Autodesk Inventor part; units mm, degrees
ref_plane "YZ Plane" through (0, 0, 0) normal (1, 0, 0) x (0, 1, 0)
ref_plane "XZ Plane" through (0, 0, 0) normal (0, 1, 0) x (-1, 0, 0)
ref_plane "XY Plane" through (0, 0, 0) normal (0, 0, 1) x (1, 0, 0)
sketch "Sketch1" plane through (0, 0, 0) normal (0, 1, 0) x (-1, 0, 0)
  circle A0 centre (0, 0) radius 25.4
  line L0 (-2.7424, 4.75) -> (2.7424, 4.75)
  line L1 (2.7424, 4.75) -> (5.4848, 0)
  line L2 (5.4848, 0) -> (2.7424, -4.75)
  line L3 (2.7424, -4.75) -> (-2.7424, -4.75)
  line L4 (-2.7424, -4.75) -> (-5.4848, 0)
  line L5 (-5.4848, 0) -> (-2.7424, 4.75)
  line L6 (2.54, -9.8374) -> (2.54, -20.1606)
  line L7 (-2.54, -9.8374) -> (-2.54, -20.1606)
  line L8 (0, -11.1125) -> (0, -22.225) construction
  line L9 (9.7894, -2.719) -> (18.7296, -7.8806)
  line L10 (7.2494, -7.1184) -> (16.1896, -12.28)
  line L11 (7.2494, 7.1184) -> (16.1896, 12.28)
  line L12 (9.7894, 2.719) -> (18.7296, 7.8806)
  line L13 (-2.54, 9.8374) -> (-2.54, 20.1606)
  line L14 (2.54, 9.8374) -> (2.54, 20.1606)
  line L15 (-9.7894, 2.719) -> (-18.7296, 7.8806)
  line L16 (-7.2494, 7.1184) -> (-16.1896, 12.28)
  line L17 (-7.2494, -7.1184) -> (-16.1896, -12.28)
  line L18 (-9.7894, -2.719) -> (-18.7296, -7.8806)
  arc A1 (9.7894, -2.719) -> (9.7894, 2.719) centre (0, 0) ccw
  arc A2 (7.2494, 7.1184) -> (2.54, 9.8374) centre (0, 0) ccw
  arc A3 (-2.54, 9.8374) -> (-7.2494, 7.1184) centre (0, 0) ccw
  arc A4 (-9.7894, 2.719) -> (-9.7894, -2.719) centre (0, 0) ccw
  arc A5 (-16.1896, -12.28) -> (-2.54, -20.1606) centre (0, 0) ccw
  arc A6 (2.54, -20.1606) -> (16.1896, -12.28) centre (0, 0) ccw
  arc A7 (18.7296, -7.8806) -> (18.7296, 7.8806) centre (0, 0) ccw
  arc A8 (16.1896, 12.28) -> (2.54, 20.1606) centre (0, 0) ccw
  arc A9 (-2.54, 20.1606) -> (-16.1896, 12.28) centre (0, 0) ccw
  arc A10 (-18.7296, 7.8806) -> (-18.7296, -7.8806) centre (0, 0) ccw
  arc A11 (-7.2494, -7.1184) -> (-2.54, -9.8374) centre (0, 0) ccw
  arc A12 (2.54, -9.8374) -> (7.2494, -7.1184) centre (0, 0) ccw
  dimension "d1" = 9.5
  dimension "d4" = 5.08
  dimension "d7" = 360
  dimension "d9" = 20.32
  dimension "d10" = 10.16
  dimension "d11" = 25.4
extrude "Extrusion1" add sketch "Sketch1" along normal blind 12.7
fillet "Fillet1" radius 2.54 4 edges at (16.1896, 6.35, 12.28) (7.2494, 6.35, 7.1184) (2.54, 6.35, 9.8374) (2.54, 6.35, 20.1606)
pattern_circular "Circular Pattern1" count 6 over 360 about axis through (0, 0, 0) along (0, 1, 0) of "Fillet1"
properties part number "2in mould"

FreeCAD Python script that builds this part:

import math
import FreeCAD as App
import Part
import Sketcher
from FreeCAD import Vector
Q = App.Units.Quantity


def edges_at(feature, points):
    """Names of the edges that pass closest to the given points."""
    edges = feature.Shape.Edges
    near = lambda p: min(range(len(edges)), key=lambda i: edges[i].distToShape(Part.Vertex(*p))[0])
    return sorted({f"Edge{near(p) + 1}" for p in points})


def add_polygon(sketch, points):
    """Adds a closed chain of lines whose ends are joined by coincident constraints."""
    first, n = sketch.GeometryCount, len(points)
    for a, b in zip(points, points[1:] + points[:1]):
        sketch.addGeometry(Part.LineSegment(App.Vector(*a, 0), App.Vector(*b, 0)), False)
    for i in range(n):
        sketch.addConstraint(Sketcher.Constraint("Coincident", first + i, 2, first + (i + 1) % n, 1))

doc = App.newDocument("Part")
body = doc.addObject("PartDesign::Body", "Body")

# Sketch on XZ plane
sketch1 = body.newObject("Sketcher::SketchObject", "Sketch")
sketch1.AttachmentSupport = (doc.getObject("XZ_Plane"), [""])
sketch1.MapMode = "FlatFace"
sketch1.addGeometry(Part.Circle(Vector(0, 0, 0), Vector(0, 0, 1), 25.4), False)  # 0
sketch1.addGeometry(Part.ArcOfCircle(Part.Circle(Vector(0, 0, 0), Vector(0, 0, 1), 10.160022), math.radians(-75.522519), math.radians(-44.477614)), False)  # 1
sketch1.addGeometry(Part.LineSegment(Vector(2.54, -9.8374, 0), Vector(2.54, -20.1606, 0)), False)  # 2
sketch1.addGeometry(Part.ArcOfCircle(Part.Circle(Vector(0, 0, 0), Vector(0, 0, 1), 20.319975), math.radians(-82.819235), math.radians(-37.18074)), False)  # 3
sketch1.addGeometry(Part.LineSegment(Vector(16.1896, -12.28, 0), Vector(7.2494, -7.1184, 0)), False)  # 4
sketch1.addGeometry(Part.LineSegment(Vector(18.7296, 7.8806, 0), Vector(9.7894, 2.719, 0)), False)  # 5
sketch1.addGeometry(Part.ArcOfCircle(Part.Circle(Vector(0, 0, 0), Vector(0, 0, 1), 10.159986), math.radians(-15.522602), math.radians(15.522602)), False)  # 6
sketch1.addGeometry(Part.LineSegment(Vector(9.7894, -2.719, 0), Vector(18.7296, -7.8806, 0)), False)  # 7
sketch1.addGeometry(Part.ArcOfCircle(Part.Circle(Vector(0, 0, 0), Vector(0, 0, 1), 20.319985), math.radians(-22.819238), math.radians(22.819238)), False)  # 8
add_polygon(sketch1, [(5.4848, 0), (2.7424, 4.75), (-2.7424, 4.75), (-5.4848, 0), (-2.7424, -4.75), (2.7424, -4.75)])  # lines 9-14
sketch1.addGeometry(Part.LineSegment(Vector(-2.54, -20.1606, 0), Vector(-2.54, -9.8374, 0)), False)  # 15
sketch1.addGeometry(Part.ArcOfCircle(Part.Circle(Vector(0, 0, 0), Vector(0, 0, 1), 10.159986), math.radians(-135.522386), math.radians(-104.477481)), False)  # 16
sketch1.addGeometry(Part.LineSegment(Vector(-7.2494, -7.1184, 0), Vector(-16.1896, -12.28, 0)), False)  # 17
sketch1.addGeometry(Part.ArcOfCircle(Part.Circle(Vector(0, 0, 0), Vector(0, 0, 1), 20.319985), math.radians(-142.81926), math.radians(-97.180765)), False)  # 18
sketch1.addGeometry(Part.LineSegment(Vector(-18.7296, -7.8806, 0), Vector(-9.7894, -2.719, 0)), False)  # 19
sketch1.addGeometry(Part.ArcOfCircle(Part.Circle(Vector(0, 0, 0), Vector(0, 0, 1), 10.159986), math.radians(164.477398), math.radians(195.522602)), False)  # 20
sketch1.addGeometry(Part.LineSegment(Vector(-9.7894, 2.719, 0), Vector(-18.7296, 7.8806, 0)), False)  # 21
sketch1.addGeometry(Part.ArcOfCircle(Part.Circle(Vector(0, 0, 0), Vector(0, 0, 1), 20.319985), math.radians(157.180762), math.radians(202.819238)), False)  # 22
sketch1.addGeometry(Part.LineSegment(Vector(2.54, 20.1606, 0), Vector(2.54, 9.8374, 0)), False)  # 23
sketch1.addGeometry(Part.ArcOfCircle(Part.Circle(Vector(0, 0, 0), Vector(0, 0, 1), 10.159986), math.radians(44.477614), math.radians(75.522519)), False)  # 24
sketch1.addGeometry(Part.LineSegment(Vector(7.2494, 7.1184, 0), Vector(16.1896, 12.28, 0)), False)  # 25
sketch1.addGeometry(Part.ArcOfCircle(Part.Circle(Vector(0, 0, 0), Vector(0, 0, 1), 20.319985), math.radians(37.18074), math.radians(82.819235)), False)  # 26
sketch1.addGeometry(Part.LineSegment(Vector(-16.1896, 12.28, 0), Vector(-7.2494, 7.1184, 0)), False)  # 27
sketch1.addGeometry(Part.ArcOfCircle(Part.Circle(Vector(0, 0, 0), Vector(0, 0, 1), 10.160022), math.radians(104.477481), math.radians(135.522386)), False)  # 28
sketch1.addGeometry(Part.LineSegment(Vector(-2.54, 9.8374, 0), Vector(-2.54, 20.1606, 0)), False)  # 29
sketch1.addGeometry(Part.ArcOfCircle(Part.Circle(Vector(0, 0, 0), Vector(0, 0, 1), 20.319975), math.radians(97.180765), math.radians(142.81926)), False)  # 30
sketch1.addConstraint(Sketcher.Constraint("Coincident", 1, 1, 2, 1))
sketch1.addConstraint(Sketcher.Constraint("Coincident", 2, 2, 3, 1))
sketch1.addConstraint(Sketcher.Constraint("Coincident", 3, 2, 4, 1))
sketch1.addConstraint(Sketcher.Constraint("Coincident", 4, 2, 1, 2))
sketch1.addConstraint(Sketcher.Constraint("Coincident", 5, 2, 6, 2))
sketch1.addConstraint(Sketcher.Constraint("Coincident", 6, 1, 7, 1))
sketch1.addConstraint(Sketcher.Constraint("Coincident", 7, 2, 8, 1))
sketch1.addConstraint(Sketcher.Constraint("Coincident", 8, 2, 5, 1))
sketch1.addConstraint(Sketcher.Constraint("Coincident", 15, 2, 16, 2))
sketch1.addConstraint(Sketcher.Constraint("Coincident", 16, 1, 17, 1))
sketch1.addConstraint(Sketcher.Constraint("Coincident", 17, 2, 18, 1))
sketch1.addConstraint(Sketcher.Constraint("Coincident", 18, 2, 15, 1))
sketch1.addConstraint(Sketcher.Constraint("Coincident", 19, 2, 20, 2))
sketch1.addConstraint(Sketcher.Constraint("Coincident", 20, 1, 21, 1))
sketch1.addConstraint(Sketcher.Constraint("Coincident", 21, 2, 22, 1))
sketch1.addConstraint(Sketcher.Constraint("Coincident", 22, 2, 19, 1))
sketch1.addConstraint(Sketcher.Constraint("Coincident", 23, 2, 24, 2))
sketch1.addConstraint(Sketcher.Constraint("Coincident", 24, 1, 25, 1))
sketch1.addConstraint(Sketcher.Constraint("Coincident", 25, 2, 26, 1))
sketch1.addConstraint(Sketcher.Constraint("Coincident", 26, 2, 23, 1))
sketch1.addConstraint(Sketcher.Constraint("Coincident", 27, 2, 28, 2))
sketch1.addConstraint(Sketcher.Constraint("Coincident", 28, 1, 29, 1))
sketch1.addConstraint(Sketcher.Constraint("Coincident", 29, 2, 30, 1))
sketch1.addConstraint(Sketcher.Constraint("Coincident", 30, 2, 27, 1))
sketch1.addConstraint(Sketcher.Constraint("Vertical", 2))
sketch1.addConstraint(Sketcher.Constraint("Horizontal", 10))
sketch1.addConstraint(Sketcher.Constraint("Horizontal", 13))
sketch1.addConstraint(Sketcher.Constraint("Vertical", 15))
sketch1.addConstraint(Sketcher.Constraint("Vertical", 23))
sketch1.addConstraint(Sketcher.Constraint("Vertical", 29))
sketch1.addConstraint(Sketcher.Constraint("Coincident", 0, 3, -1, 1))
sketch1.addConstraint(Sketcher.Constraint("Coincident", 1, 3, -1, 1))
sketch1.addConstraint(Sketcher.Constraint("Coincident", 3, 3, -1, 1))
sketch1.addConstraint(Sketcher.Constraint("Coincident", 6, 3, -1, 1))
sketch1.addConstraint(Sketcher.Constraint("Coincident", 8, 3, -1, 1))
sketch1.addConstraint(Sketcher.Constraint("Coincident", 16, 3, -1, 1))
sketch1.addConstraint(Sketcher.Constraint("Coincident", 18, 3, -1, 1))
sketch1.addConstraint(Sketcher.Constraint("Coincident", 20, 3, -1, 1))
sketch1.addConstraint(Sketcher.Constraint("Coincident", 22, 3, -1, 1))
sketch1.addConstraint(Sketcher.Constraint("Coincident", 24, 3, -1, 1))
sketch1.addConstraint(Sketcher.Constraint("Coincident", 26, 3, -1, 1))
sketch1.addConstraint(Sketcher.Constraint("Coincident", 28, 3, -1, 1))
sketch1.addConstraint(Sketcher.Constraint("Coincident", 30, 3, -1, 1))
sketch1.addConstraint(Sketcher.Constraint("Equal", 1, 6))
sketch1.addConstraint(Sketcher.Constraint("Equal", 3, 8))
sketch1.addConstraint(Sketcher.Constraint("Equal", 6, 16))
sketch1.addConstraint(Sketcher.Constraint("Equal", 8, 18))
sketch1.addConstraint(Sketcher.Constraint("Equal", 16, 20))
sketch1.addConstraint(Sketcher.Constraint("Equal", 18, 22))
sketch1.addConstraint(Sketcher.Constraint("Equal", 20, 24))
sketch1.addConstraint(Sketcher.Constraint("Equal", 22, 26))
sketch1.addConstraint(Sketcher.Constraint("Equal", 24, 28))
sketch1.addConstraint(Sketcher.Constraint("Equal", 26, 30))
sketch1.addConstraint(Sketcher.Constraint("Symmetric", 9, 2, 12, 2, -1, 1))
sketch1.addConstraint(Sketcher.Constraint("Symmetric", 11, 2, 14, 2, -1, 1))
sketch1.addConstraint(Sketcher.Constraint("PointOnObject", 11, 2, -1))
sketch1.addConstraint(Sketcher.Constraint("Parallel", 4, 7))
sketch1.addConstraint(Sketcher.Constraint("Perpendicular", 5, 9))
sketch1.addConstraint(Sketcher.Constraint("Perpendicular", 7, 11))
sketch1.addConstraint(Sketcher.Constraint("Parallel", 11, 14))
sketch1.addConstraint(Sketcher.Constraint("Perpendicular", 12, 17))
sketch1.addConstraint(Sketcher.Constraint("Parallel", 17, 19))
sketch1.addConstraint(Sketcher.Constraint("Perpendicular", 14, 21))
sketch1.addConstraint(Sketcher.Constraint("Parallel", 19, 25))
sketch1.addConstraint(Sketcher.Constraint("Parallel", 21, 27))
sketch1.addConstraint(Sketcher.Constraint("Horizontal", 1, 1, 15, 2))
sketch1.addConstraint(Sketcher.Constraint("Horizontal", 4, 2, 16, 1))
sketch1.addConstraint(Sketcher.Constraint("Horizontal", 3, 2, 17, 2))
sketch1.addConstraint(Sketcher.Constraint("Horizontal", 6, 1, 19, 2))
sketch1.addConstraint(Sketcher.Constraint("Horizontal", 5, 2, 20, 1))
sketch1.addConstraint(Sketcher.Constraint("Horizontal", 24, 1, 27, 2))
sketch1.addConstraint(Sketcher.Constraint("Horizontal", 23, 2, 28, 1))
sketch1.addConstraint(Sketcher.Constraint("Vertical", 5, 2, 6, 1))
sketch1.addConstraint(Sketcher.Constraint("Vertical", 2, 2, 23, 2))
sketch1.addConstraint(Sketcher.Constraint("Vertical", 4, 2, 24, 1))
sketch1.addConstraint(Sketcher.Constraint("Equal", 4, 5))
sketch1.addConstraint(Sketcher.Constraint("Diameter", 0, Q("2 in")))
sketch1.addConstraint(Sketcher.Constraint("Radius", 1, Q("0.4 in")))
sketch1.addConstraint(Sketcher.Constraint("Radius", 3, Q("0.8 in")))
sketch1.addConstraint(Sketcher.Constraint("DistanceX", 15, 2, 1, 1, Q("0.2 in")))
sketch1.addConstraint(Sketcher.Constraint("Angle", 4, Q("150.0001 deg")))
sketch1.addConstraint(Sketcher.Constraint("DistanceX", 4, 2, 6, 1, Q("0.1 in")))
sketch1.addConstraint(Sketcher.Constraint("DistanceY", -1, 1, 9, 2, Q("0.187 in")))
sketch1.addConstraint(Sketcher.Constraint("DistanceX", 10, 2, 10, 1, Q("5.4848 mm")))
pad1 = body.newObject("PartDesign::Pad", "Pad")
pad1.Profile = sketch1
pad1.Length = Q("0.5 in")
pad1.Reversed = True
doc.recompute()

fillet = body.newObject("PartDesign::Fillet", "Fillet")
fillet.Base = (pad1, edges_at(pad1, [
    (16.19, 6.35, 12.28),
    (7.249, 6.35, 7.118),
    (2.54, 6.35, 9.837),
    (2.54, 6.35, 20.161),
]))
fillet.Radius = Q("0.1 in")
doc.recompute()

polarpattern = body.newObject("PartDesign::PolarPattern", "PolarPattern")
polarpattern.Originals = [fillet]
polarpattern.Axis = (doc.getObject("Y_Axis"), [""])
polarpattern.Angle = 360
polarpattern.Occurrences = 6
body.Tip = polarpattern

doc.recompute()
